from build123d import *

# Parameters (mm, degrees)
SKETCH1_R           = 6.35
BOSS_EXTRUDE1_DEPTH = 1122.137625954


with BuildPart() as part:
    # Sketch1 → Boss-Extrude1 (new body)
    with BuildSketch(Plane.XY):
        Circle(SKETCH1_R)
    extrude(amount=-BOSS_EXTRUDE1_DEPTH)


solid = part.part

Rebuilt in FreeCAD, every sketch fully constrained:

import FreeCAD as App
import Part
import Sketcher
Q = App.Units.Quantity

doc = App.newDocument("Part")
body = doc.addObject("PartDesign::Body", "Body")

sketch1 = body.newObject("Sketcher::SketchObject", "Sketch")
sketch1.AttachmentSupport = (doc.getObject("XY_Plane"), [""])
sketch1.MapMode = "FlatFace"
sketch1.addGeometry(Part.Circle(App.Vector(0, 0, 0), App.Vector(0, 0, 1), 6), False)
sketch1.addConstraint(Sketcher.Constraint("Coincident", 0, 3, -1, 1))
sketch1.addConstraint(Sketcher.Constraint("Diameter", 0, Q("0.5 in")))
pad1 = body.newObject("PartDesign::Pad", "Pad")
pad1.Profile = sketch1
pad1.Length = 1122.137626
pad1.Reversed = True

doc.recompute()
